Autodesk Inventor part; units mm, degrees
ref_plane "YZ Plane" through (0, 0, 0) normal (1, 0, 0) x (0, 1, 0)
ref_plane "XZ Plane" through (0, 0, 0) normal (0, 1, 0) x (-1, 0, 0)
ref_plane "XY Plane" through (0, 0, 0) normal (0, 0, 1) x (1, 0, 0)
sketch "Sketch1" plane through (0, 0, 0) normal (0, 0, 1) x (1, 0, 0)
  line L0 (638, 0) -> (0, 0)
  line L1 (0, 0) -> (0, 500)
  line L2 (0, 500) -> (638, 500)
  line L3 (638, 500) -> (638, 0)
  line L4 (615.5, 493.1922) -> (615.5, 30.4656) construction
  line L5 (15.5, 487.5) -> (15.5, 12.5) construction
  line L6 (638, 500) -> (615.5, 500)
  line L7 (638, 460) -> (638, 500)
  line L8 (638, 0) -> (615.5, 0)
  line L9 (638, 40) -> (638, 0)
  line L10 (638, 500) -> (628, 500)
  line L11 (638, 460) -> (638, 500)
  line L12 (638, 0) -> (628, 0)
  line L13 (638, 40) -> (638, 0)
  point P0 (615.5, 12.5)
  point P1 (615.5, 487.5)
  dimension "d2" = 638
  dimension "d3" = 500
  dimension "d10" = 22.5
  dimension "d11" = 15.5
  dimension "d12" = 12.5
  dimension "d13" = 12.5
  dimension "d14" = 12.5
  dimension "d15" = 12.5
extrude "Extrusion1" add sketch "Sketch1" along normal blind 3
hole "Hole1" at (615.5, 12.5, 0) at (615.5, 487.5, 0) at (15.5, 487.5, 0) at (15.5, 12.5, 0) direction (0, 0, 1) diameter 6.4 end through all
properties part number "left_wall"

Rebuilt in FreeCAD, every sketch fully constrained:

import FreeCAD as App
import Part
import Sketcher
Q = App.Units.Quantity

doc = App.newDocument("Part")
body = doc.addObject("PartDesign::Body", "Body")

# Sketch on XY plane
sketch1 = body.newObject("Sketcher::SketchObject", "Sketch")
sketch1.AttachmentSupport = (doc.getObject("XY_Plane"), [""])
sketch1.MapMode = "FlatFace"
sketch1.addGeometry([
    Part.LineSegment(App.Vector(0, 0, 0), App.Vector(638, 0, 0)),
    Part.LineSegment(App.Vector(638, 0, 0), App.Vector(638, 500, 0)),
    Part.LineSegment(App.Vector(638, 500, 0), App.Vector(0, 500, 0)),
    Part.LineSegment(App.Vector(0, 500, 0), App.Vector(0, 0, 0)),
], False)
sketch1.addConstraint([
    Sketcher.Constraint("Coincident", 0, 2, 1, 1),
    Sketcher.Constraint("Coincident", 1, 2, 2, 1),
    Sketcher.Constraint("Coincident", 2, 2, 3, 1),
    Sketcher.Constraint("Coincident", 3, 2, 0, 1),
    Sketcher.Constraint("Horizontal", 0),
    Sketcher.Constraint("Vertical", 1),
    Sketcher.Constraint("Horizontal", 2),
    Sketcher.Constraint("Vertical", 3),
    Sketcher.Constraint("Coincident", 3, 2, -1, 1),
    Sketcher.Constraint("DistanceX", 0, 1, 0, 2, Q("638 mm")),
    Sketcher.Constraint("DistanceY", 1, 1, 1, 2, Q("500 mm")),
])
pad1 = body.newObject("PartDesign::Pad", "Pad")
pad1.Profile = sketch1
pad1.Length = 3

# Sketch on XY plane
sketch2 = body.newObject("Sketcher::SketchObject", "Sketch001")
sketch2.AttachmentSupport = (doc.getObject("XY_Plane"), [""])
sketch2.MapMode = "FlatFace"
sketch2.addGeometry([
    Part.Circle(App.Vector(615.5, 12.5, 0), App.Vector(0, 0, 1), 3.2),
    Part.Circle(App.Vector(615.5, 487.5, 0), App.Vector(0, 0, 1), 3.2),
    Part.Circle(App.Vector(15.5, 487.5, 0), App.Vector(0, 0, 1), 3.2),
    Part.Circle(App.Vector(15.5, 12.5, 0), App.Vector(0, 0, 1), 3.2),
], False)
sketch2.addConstraint([
    Sketcher.Constraint("Equal", 0, 1),
    Sketcher.Constraint("Equal", 1, 2),
    Sketcher.Constraint("Equal", 2, 3),
    Sketcher.Constraint("Horizontal", 1, 3, 2, 3),
    Sketcher.Constraint("Horizontal", 0, 3, 3, 3),
    Sketcher.Constraint("Vertical", 0, 3, 1, 3),
    Sketcher.Constraint("Vertical", 2, 3, 3, 3),
    Sketcher.Constraint("Diameter", 0, Q("6.4 mm")),
    Sketcher.Constraint("DistanceY", 0, 3, 1, 3, Q("475 mm")),
    Sketcher.Constraint("DistanceX", 2, 3, 1, 3, Q("600 mm")),
    Sketcher.Constraint("DistanceX", -1, 1, 0, 3, Q("615.5 mm")),
    Sketcher.Constraint("DistanceY", -1, 1, 0, 3, Q("12.5 mm")),
])
doc.recompute()
hole = body.newObject("PartDesign::Hole", "Hole")
hole.Profile = sketch2
hole.ThreadType = "None"
hole.Diameter = 6.4
hole.DepthType = "ThroughAll"
hole.Reversed = True

doc.recompute()
